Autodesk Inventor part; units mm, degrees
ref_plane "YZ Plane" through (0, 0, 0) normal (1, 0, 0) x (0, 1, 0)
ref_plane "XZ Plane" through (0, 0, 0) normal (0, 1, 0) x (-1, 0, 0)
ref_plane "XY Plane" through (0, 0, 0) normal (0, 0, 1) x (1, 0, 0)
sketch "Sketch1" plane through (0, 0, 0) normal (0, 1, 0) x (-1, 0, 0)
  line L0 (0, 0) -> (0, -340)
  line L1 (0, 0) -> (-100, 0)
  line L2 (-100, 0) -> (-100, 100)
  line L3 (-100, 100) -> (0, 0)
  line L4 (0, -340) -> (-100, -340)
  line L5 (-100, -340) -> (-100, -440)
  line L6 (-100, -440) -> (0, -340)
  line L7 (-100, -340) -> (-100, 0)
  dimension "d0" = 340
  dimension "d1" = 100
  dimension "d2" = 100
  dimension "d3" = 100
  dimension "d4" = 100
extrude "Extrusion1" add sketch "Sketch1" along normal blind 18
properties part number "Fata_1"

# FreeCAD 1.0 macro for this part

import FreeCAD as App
import Part
import Sketcher
Q = App.Units.Quantity

doc = App.newDocument("Part")
body = doc.addObject("PartDesign::Body", "Body")

sketch1 = body.newObject("Sketcher::SketchObject", "Sketch")
sketch1.AttachmentSupport = (doc.getObject("XZ_Plane"), [""])
sketch1.MapMode = "FlatFace"
sketch1.addGeometry([
    Part.LineSegment(App.Vector(0, -340, 0), App.Vector(0, 0, 0)),
    Part.LineSegment(App.Vector(0, 0, 0), App.Vector(100, 100, 0)),
    Part.LineSegment(App.Vector(100, 100, 0), App.Vector(100, -440, 0)),
    Part.LineSegment(App.Vector(100, -440, 0), App.Vector(0, -340, 0)),
], False)
sketch1.addConstraint([
    Sketcher.Constraint("Coincident", 0, 2, 1, 1),
    Sketcher.Constraint("Coincident", 1, 2, 2, 1),
    Sketcher.Constraint("Coincident", 2, 2, 3, 1),
    Sketcher.Constraint("Coincident", 3, 2, 0, 1),
    Sketcher.Constraint("Vertical", 0),
    Sketcher.Constraint("Vertical", 2),
    Sketcher.Constraint("Coincident", 0, 2, -1, 1),
    Sketcher.Constraint("Perpendicular", 1, 3),
    Sketcher.Constraint("Equal", 1, 3),
    Sketcher.Constraint("DistanceY", 0, 1, 0, 2, Q("340 mm")),
    Sketcher.Constraint("DistanceX", -1, 1, 1, 2, Q("100 mm")),
])
pad1 = body.newObject("PartDesign::Pad", "Pad")
pad1.Profile = sketch1
pad1.Length = 18
pad1.Reversed = True

doc.recompute()
